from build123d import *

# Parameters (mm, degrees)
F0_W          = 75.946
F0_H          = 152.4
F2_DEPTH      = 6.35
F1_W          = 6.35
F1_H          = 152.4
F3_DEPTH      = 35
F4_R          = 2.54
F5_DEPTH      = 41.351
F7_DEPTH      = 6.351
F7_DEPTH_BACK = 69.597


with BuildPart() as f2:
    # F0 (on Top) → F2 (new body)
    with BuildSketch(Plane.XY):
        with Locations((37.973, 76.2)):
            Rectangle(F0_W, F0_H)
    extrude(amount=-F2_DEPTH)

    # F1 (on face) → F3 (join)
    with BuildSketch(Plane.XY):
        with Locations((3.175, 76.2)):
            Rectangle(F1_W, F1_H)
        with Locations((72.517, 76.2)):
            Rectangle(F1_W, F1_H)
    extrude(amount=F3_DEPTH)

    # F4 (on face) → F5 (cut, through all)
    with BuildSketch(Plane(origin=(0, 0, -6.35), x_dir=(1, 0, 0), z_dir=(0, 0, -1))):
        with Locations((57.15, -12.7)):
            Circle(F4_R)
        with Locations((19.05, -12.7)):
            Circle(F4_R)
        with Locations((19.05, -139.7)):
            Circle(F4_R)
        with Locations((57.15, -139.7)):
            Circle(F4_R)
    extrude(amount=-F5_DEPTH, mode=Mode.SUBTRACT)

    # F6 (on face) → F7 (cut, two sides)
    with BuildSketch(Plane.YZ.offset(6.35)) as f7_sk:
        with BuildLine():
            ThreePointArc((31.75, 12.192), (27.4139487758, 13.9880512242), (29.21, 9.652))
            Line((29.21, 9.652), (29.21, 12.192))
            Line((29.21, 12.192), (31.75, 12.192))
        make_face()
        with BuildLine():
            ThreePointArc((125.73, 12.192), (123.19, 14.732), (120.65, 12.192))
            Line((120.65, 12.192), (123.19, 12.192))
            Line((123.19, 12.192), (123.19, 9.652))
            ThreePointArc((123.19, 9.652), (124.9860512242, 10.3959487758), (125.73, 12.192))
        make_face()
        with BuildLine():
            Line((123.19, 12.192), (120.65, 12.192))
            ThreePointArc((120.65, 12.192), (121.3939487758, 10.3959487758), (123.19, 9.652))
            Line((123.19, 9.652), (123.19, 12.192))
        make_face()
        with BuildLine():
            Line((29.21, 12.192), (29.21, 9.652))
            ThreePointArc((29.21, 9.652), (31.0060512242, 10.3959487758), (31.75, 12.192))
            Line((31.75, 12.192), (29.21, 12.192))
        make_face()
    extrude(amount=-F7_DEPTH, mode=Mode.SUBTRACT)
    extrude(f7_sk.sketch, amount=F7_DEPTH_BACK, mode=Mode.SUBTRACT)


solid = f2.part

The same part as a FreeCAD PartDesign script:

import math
import FreeCAD as App
import Part
import Sketcher

V = App.Vector
Q = App.Units.Quantity

doc = App.newDocument("Part")
body = doc.addObject("PartDesign::Body", "Body")

sketch1 = body.newObject("Sketcher::SketchObject", "Sketch")
sketch1.AttachmentSupport = (doc.getObject("XY_Plane"), [""])
sketch1.MapMode = "FlatFace"
sketch1.addGeometry([
    Part.LineSegment(V(0, 152.4, 0), V(0, 0, 0)),
    Part.LineSegment(V(0, 0, 0), V(75.946, 0, 0)),
    Part.LineSegment(V(75.946, 0, 0), V(75.946, 152.4, 0)),
    Part.LineSegment(V(75.946, 152.4, 0), V(0, 152.4, 0)),
], False)
sketch1.addConstraint([
    Sketcher.Constraint("Coincident", 0, 2, 1, 1),
    Sketcher.Constraint("Coincident", 1, 2, 2, 1),
    Sketcher.Constraint("Coincident", 2, 2, 3, 1),
    Sketcher.Constraint("Coincident", 3, 2, 0, 1),
    Sketcher.Constraint("Vertical", 0),
    Sketcher.Constraint("Horizontal", 1),
    Sketcher.Constraint("Vertical", 2),
    Sketcher.Constraint("Horizontal", 3),
    Sketcher.Constraint("Coincident", 0, 2, -1, 1),
    Sketcher.Constraint("DistanceY", 0, 2, 0, 1, Q("6 in")),
    Sketcher.Constraint("DistanceX", 1, 1, 1, 2, Q("2.99 in")),
])
pad1 = body.newObject("PartDesign::Pad", "Pad")
pad1.Profile = sketch1
pad1.Length = Q("0.25 in")
pad1.Reversed = True

sketch2 = body.newObject("Sketcher::SketchObject", "Sketch001")
sketch2.AttachmentSupport = (doc.getObject("XY_Plane"), [""])
sketch2.MapMode = "FlatFace"
sketch2.addGeometry([
    Part.LineSegment(V(0, 152.4, 0), V(0, 0, 0)),
    Part.LineSegment(V(0, 0, 0), V(6.35, 0, 0)),
    Part.LineSegment(V(6.35, 0, 0), V(6.35, 152.4, 0)),
    Part.LineSegment(V(6.35, 152.4, 0), V(0, 152.4, 0)),
    Part.LineSegment(V(69.342, 152.4, 0), V(69.342, 0, 0)),
    Part.LineSegment(V(69.342, 0, 0), V(75.692, 0, 0)),
    Part.LineSegment(V(75.692, 0, 0), V(75.692, 152.4, 0)),
    Part.LineSegment(V(75.692, 152.4, 0), V(69.342, 152.4, 0)),
], False)
sketch2.addConstraint([
    Sketcher.Constraint("Coincident", 0, 2, 1, 1),
    Sketcher.Constraint("Coincident", 1, 2, 2, 1),
    Sketcher.Constraint("Coincident", 2, 2, 3, 1),
    Sketcher.Constraint("Coincident", 3, 2, 0, 1),
    Sketcher.Constraint("Coincident", 4, 2, 5, 1),
    Sketcher.Constraint("Coincident", 5, 2, 6, 1),
    Sketcher.Constraint("Coincident", 6, 2, 7, 1),
    Sketcher.Constraint("Coincident", 7, 2, 4, 1),
    Sketcher.Constraint("Vertical", 0),
    Sketcher.Constraint("Horizontal", 1),
    Sketcher.Constraint("Vertical", 2),
    Sketcher.Constraint("Horizontal", 3),
    Sketcher.Constraint("Vertical", 4),
    Sketcher.Constraint("Horizontal", 5),
    Sketcher.Constraint("Vertical", 6),
    Sketcher.Constraint("Horizontal", 7),
    Sketcher.Constraint("Coincident", 0, 2, -1, 1),
    Sketcher.Constraint("PointOnObject", 4, 2, -1),
    Sketcher.Constraint("Horizontal", 3, 2, 6, 2),
    Sketcher.Constraint("Equal", 3, 5),
    Sketcher.Constraint("DistanceY", 0, 2, 0, 1, Q("6 in")),
    Sketcher.Constraint("DistanceX", 1, 1, 1, 2, Q("0.25 in")),
    Sketcher.Constraint("DistanceX", -1, 1, 4, 2, Q("2.73 in")),
])
pad2 = body.newObject("PartDesign::Pad", "Pad001")
pad2.Profile = sketch2
pad2.Length = 35

sketch3 = body.newObject("Sketcher::SketchObject", "Sketch002")
sketch3.AttachmentSupport = (doc.getObject("XY_Plane"), [""])
sketch3.MapMode = "FlatFace"
sketch3.AttachmentOffset = App.Placement(V(0, 0, -0.25 * 25.4), App.Rotation())
sketch3.addGeometry([
    Part.Circle(V(57.15, 12.7, 0), V(0, 0, 1), 2.54),
    Part.Circle(V(19.05, 12.7, 0), V(0, 0, 1), 2.54),
    Part.Circle(V(19.05, 139.7, 0), V(0, 0, 1), 2.54),
    Part.Circle(V(57.15, 139.7, 0), V(0, 0, 1), 2.54),
], False)
sketch3.addConstraint([
    Sketcher.Constraint("Equal", 0, 1),
    Sketcher.Constraint("Equal", 1, 2),
    Sketcher.Constraint("Equal", 2, 3),
    Sketcher.Constraint("Horizontal", 0, 3, 1, 3),
    Sketcher.Constraint("Horizontal", 2, 3, 3, 3),
    Sketcher.Constraint("Vertical", 1, 3, 2, 3),
    Sketcher.Constraint("Vertical", 0, 3, 3, 3),
    Sketcher.Constraint("Diameter", 0, Q("0.2 in")),
    Sketcher.Constraint("DistanceY", 1, 3, 2, 3, Q("5 in")),
    Sketcher.Constraint("DistanceY", -1, 1, 0, 3, Q("0.5 in")),
    Sketcher.Constraint("DistanceX", 1, 3, 0, 3, Q("1.5 in")),
    Sketcher.Constraint("DistanceX", -1, 1, 0, 3, Q("2.25 in")),
])
pocket1 = body.newObject("PartDesign::Pocket", "Pocket")
pocket1.Profile = sketch3
pocket1.Type = "ThroughAll"
pocket1.Reversed = True

sketch4 = body.newObject("Sketcher::SketchObject", "Sketch003")
sketch4.AttachmentSupport = (doc.getObject("YZ_Plane"), [""])
sketch4.MapMode = "FlatFace"
sketch4.AttachmentOffset = App.Placement(V(0, 0, 0.25 * 25.4), App.Rotation())
sketch4.addGeometry([
    Part.ArcOfCircle(Part.Circle(V(29.21, 12.192, 0), V(0, 0, 1), 2.54), math.radians(0), math.radians(270)),
    Part.ArcOfCircle(Part.Circle(V(29.21, 12.192, 0), V(0, 0, 1), 2.54), math.radians(-90), math.radians(0)),
    Part.ArcOfCircle(Part.Circle(V(123.19, 12.192, 0), V(0, 0, 1), 2.54), math.radians(0), math.radians(180)),
    Part.ArcOfCircle(Part.Circle(V(123.19, 12.192, 0), V(0, 0, 1), 2.54), math.radians(180), math.radians(270)),
    Part.ArcOfCircle(Part.Circle(V(123.19, 12.192, 0), V(0, 0, 1), 2.54), math.radians(-90), math.radians(0)),
], False)
sketch4.addConstraint([
    Sketcher.Constraint("Tangent", 0, 1, 1, 2),
    Sketcher.Constraint("Coincident", 1, 1, 0, 2),
    Sketcher.Constraint("Tangent", 2, 2, 3, 1),
    Sketcher.Constraint("Tangent", 3, 2, 4, 1),
    Sketcher.Constraint("Tangent", 4, 2, 2, 1),
    Sketcher.Constraint("Equal", 1, 2),
    Sketcher.Constraint("Horizontal", 1, 3, 2, 3),
    Sketcher.Constraint("Horizontal", 4, 3, 0, 1),
    Sketcher.Constraint("Horizontal", 0, 1, 2, 2),
    Sketcher.Constraint("Horizontal", 2, 2, 4, 2),
    Sketcher.Constraint("Vertical", 0, 3, 1, 1),
    Sketcher.Constraint("Vertical", 4, 3, 3, 2),
    Sketcher.Constraint("Radius", 0, Q("0.1 in")),
    Sketcher.Constraint("DistanceX", 0, 3, 2, 3, Q("3.7 in")),
    Sketcher.Constraint("DistanceX", -1, 1, 0, 3, Q("1.15 in")),
    Sketcher.Constraint("DistanceY", -1, 1, 0, 3, Q("0.48 in")),
])
pocket2 = body.newObject("PartDesign::Pocket", "Pocket001")
pocket2.Profile = sketch4
pocket2.Type = "ThroughAll"
pocket2.Midplane = True

doc.recompute()
